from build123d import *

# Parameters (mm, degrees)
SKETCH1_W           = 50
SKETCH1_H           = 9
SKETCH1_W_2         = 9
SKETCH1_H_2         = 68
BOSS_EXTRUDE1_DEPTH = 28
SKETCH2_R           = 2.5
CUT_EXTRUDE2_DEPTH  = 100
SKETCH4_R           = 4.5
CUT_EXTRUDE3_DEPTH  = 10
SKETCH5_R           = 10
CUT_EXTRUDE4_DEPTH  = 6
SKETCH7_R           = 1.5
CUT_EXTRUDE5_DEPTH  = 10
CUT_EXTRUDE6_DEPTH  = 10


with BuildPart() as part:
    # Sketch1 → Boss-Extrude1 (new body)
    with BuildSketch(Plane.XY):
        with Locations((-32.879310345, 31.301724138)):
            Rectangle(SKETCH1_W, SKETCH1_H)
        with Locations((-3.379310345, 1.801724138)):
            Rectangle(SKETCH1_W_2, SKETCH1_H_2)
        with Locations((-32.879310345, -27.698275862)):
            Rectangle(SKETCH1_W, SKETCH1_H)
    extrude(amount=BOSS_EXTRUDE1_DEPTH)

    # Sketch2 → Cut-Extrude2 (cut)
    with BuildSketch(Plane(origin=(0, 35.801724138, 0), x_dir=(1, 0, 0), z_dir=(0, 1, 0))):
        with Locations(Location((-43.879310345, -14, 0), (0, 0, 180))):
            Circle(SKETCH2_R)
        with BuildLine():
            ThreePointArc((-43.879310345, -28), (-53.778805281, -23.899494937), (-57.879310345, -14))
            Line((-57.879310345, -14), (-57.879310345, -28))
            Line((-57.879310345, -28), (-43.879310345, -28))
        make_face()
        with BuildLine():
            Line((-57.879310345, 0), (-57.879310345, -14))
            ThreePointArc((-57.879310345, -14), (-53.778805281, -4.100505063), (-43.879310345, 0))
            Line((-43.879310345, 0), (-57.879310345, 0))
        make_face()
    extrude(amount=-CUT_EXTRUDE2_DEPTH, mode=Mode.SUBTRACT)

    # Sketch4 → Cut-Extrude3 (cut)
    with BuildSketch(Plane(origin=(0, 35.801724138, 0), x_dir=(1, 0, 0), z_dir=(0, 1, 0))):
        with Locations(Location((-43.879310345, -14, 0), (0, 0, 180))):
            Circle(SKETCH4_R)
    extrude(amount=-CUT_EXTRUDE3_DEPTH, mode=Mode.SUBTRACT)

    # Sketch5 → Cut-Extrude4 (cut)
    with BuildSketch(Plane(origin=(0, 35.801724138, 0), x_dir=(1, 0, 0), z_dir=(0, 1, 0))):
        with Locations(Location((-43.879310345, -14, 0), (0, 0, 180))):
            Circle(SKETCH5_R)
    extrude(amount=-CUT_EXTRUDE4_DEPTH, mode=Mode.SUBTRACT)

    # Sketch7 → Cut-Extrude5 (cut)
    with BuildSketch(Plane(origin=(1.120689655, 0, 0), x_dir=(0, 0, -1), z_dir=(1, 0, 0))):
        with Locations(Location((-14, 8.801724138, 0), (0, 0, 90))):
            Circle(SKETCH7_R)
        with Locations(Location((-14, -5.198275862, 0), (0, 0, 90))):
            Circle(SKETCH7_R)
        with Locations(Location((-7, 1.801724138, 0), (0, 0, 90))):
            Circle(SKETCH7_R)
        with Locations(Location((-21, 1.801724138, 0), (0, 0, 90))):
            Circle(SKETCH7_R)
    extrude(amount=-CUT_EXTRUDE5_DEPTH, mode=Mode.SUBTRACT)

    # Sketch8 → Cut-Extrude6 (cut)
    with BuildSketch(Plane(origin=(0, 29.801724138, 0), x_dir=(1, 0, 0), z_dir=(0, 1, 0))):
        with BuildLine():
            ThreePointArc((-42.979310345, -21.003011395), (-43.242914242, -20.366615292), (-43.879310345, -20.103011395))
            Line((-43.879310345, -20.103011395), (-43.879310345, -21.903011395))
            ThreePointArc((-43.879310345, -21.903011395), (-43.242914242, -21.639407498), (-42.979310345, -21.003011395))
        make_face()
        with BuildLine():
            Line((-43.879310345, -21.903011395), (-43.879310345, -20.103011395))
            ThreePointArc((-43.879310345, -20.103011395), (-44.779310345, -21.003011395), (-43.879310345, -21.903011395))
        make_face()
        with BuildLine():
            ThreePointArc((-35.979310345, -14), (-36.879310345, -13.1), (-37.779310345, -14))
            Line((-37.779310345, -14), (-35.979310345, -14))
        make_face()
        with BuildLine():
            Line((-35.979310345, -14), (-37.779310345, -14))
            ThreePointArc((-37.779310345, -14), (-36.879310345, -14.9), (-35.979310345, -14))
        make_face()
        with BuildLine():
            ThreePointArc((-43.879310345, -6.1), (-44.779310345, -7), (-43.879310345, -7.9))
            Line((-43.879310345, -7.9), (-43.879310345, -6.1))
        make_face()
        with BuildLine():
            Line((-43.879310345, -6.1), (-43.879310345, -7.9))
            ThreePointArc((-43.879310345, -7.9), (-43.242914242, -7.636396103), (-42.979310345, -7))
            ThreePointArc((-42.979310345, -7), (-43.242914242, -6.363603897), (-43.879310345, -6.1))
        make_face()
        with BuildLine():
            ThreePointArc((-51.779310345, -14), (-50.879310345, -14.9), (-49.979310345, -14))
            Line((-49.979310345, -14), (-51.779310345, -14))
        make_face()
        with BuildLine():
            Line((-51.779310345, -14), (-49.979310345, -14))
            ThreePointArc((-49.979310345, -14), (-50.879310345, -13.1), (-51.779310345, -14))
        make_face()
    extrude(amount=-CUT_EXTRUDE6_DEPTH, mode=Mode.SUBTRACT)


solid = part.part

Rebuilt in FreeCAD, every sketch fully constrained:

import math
import FreeCAD as App
import Part
import Sketcher

V = App.Vector

doc = App.newDocument("Part")
body = doc.addObject("PartDesign::Body", "Body")

sketch1 = doc.addObject("Sketcher::SketchObject", "Sketch")
body.addObject(sketch1)
sketch1.AttachmentSupport = (doc.XY_Plane, [""])
sketch1.MapMode = "FlatFace"
sketch1.addGeometry([
    Part.LineSegment(V(-58, 36, 0), V(-58, 27, 0)),
    Part.LineSegment(V(-58, 27, 0), V(-8, 27, 0)),
    Part.LineSegment(V(-8, 27, 0), V(-8, -23, 0)),
    Part.LineSegment(V(-8, -23, 0), V(-58, -23, 0)),
    Part.LineSegment(V(-58, -23, 0), V(-58, -32, 0)),
    Part.LineSegment(V(-58, -32, 0), V(1, -32, 0)),
    Part.LineSegment(V(1, -32, 0), V(1, 36, 0)),
    Part.LineSegment(V(1, 36, 0), V(-58, 36, 0)),
], False)
sketch1.addConstraint([
    Sketcher.Constraint("Coincident", 0, 2, 1, 1),
    Sketcher.Constraint("Coincident", 1, 2, 2, 1),
    Sketcher.Constraint("Coincident", 2, 2, 3, 1),
    Sketcher.Constraint("Coincident", 3, 2, 4, 1),
    Sketcher.Constraint("Coincident", 4, 2, 5, 1),
    Sketcher.Constraint("Coincident", 5, 2, 6, 1),
    Sketcher.Constraint("Coincident", 6, 2, 7, 1),
    Sketcher.Constraint("Coincident", 7, 2, 0, 1),
    Sketcher.Constraint("Vertical", 0),
    Sketcher.Constraint("Horizontal", 1),
    Sketcher.Constraint("Vertical", 2),
    Sketcher.Constraint("Horizontal", 3),
    Sketcher.Constraint("Vertical", 4),
    Sketcher.Constraint("Horizontal", 5),
    Sketcher.Constraint("Vertical", 6),
    Sketcher.Constraint("Horizontal", 7),
    Sketcher.Constraint("Vertical", 0, 2, 3, 2),
    Sketcher.Constraint("Equal", 3, 2),
    Sketcher.Constraint("Equal", 0, 4),
    Sketcher.Constraint("DistanceX", 1, 1, 1, 2, 50.0),
    Sketcher.Constraint("DistanceX", 5, 1, 5, 2, 59.0),
    Sketcher.Constraint("DistanceY", 0, 2, 0, 1, 9.0),
    Sketcher.Constraint("DistanceX", 0, 2, -1, 1, 57.87931),
    Sketcher.Constraint("DistanceY", -1, 1, 0, 2, 26.801724),
])
pad1 = doc.addObject("PartDesign::Pad", "Pad")
body.addObject(pad1)
pad1.Profile = sketch1
pad1.Length = 28

sketch2 = doc.addObject("Sketcher::SketchObject", "Sketch001")
body.addObject(sketch2)
sketch2.AttachmentSupport = (doc.XZ_Plane, [""])
sketch2.MapMode = "FlatFace"
sketch2.AttachmentOffset = App.Placement(V(0, 0, -35.801724), App.Rotation())
sketch2.addGeometry([
    Part.Circle(V(-43.9, 14, 0), V(0, 0, 1), 2.5),
    Part.ArcOfCircle(Part.Circle(V(-43.9, 14, 0), V(0, 0, 1), 14), math.radians(90), math.radians(180)),
    Part.LineSegment(V(-57.9, 14, 0), V(-57.9, 28, 0)),
    Part.LineSegment(V(-57.9, 28, 0), V(-43.9, 28, 0)),
    Part.LineSegment(V(-57.9, 0, 0), V(-57.9, 14, 0)),
    Part.ArcOfCircle(Part.Circle(V(-43.9, 14, 0), V(0, 0, 1), 14), math.radians(180), math.radians(270)),
    Part.LineSegment(V(-43.9, 0, 0), V(-57.9, 0, 0)),
], False)
sketch2.addConstraint([
    Sketcher.Constraint("Tangent", 1, 2, 2, 1),
    Sketcher.Constraint("Coincident", 2, 2, 3, 1),
    Sketcher.Constraint("Tangent", 3, 2, 1, 1),
    Sketcher.Constraint("Tangent", 4, 2, 5, 1),
    Sketcher.Constraint("Tangent", 5, 2, 6, 1),
    Sketcher.Constraint("Coincident", 6, 2, 4, 1),
    Sketcher.Constraint("Vertical", 2),
    Sketcher.Constraint("Horizontal", 3),
    Sketcher.Constraint("Vertical", 4),
    Sketcher.Constraint("Horizontal", 6),
    Sketcher.Constraint("Coincident", 1, 3, 0, 3),
    Sketcher.Constraint("Coincident", 5, 3, 0, 3),
    Sketcher.Constraint("Equal", 1, 5),
    Sketcher.Constraint("PointOnObject", 5, 2, -1),
    Sketcher.Constraint("Diameter", 0, 5.0),
    Sketcher.Constraint("Radius", 1, 14.0),
    Sketcher.Constraint("DistanceX", 0, 3, -1, 1, 43.87931),
])
pocket1 = doc.addObject("PartDesign::Pocket", "Pocket")
body.addObject(pocket1)
pocket1.Profile = sketch2
pocket1.Length = 100
pocket1.Reversed = True

sketch3 = doc.addObject("Sketcher::SketchObject", "Sketch002")
body.addObject(sketch3)
sketch3.AttachmentSupport = (doc.XZ_Plane, [""])
sketch3.MapMode = "FlatFace"
sketch3.AttachmentOffset = App.Placement(V(0, 0, -35.801724), App.Rotation())
sketch3.addGeometry(Part.Circle(V(-43.9, 14, 0), V(0, 0, 1), 4.5), False)
sketch3.addConstraint([
    Sketcher.Constraint("Diameter", 0, 9.0),
    Sketcher.Constraint("DistanceY", -1, 1, 0, 3, 14.0),
    Sketcher.Constraint("DistanceX", 0, 3, -1, 1, 43.87931),
])
pocket2 = doc.addObject("PartDesign::Pocket", "Pocket001")
body.addObject(pocket2)
pocket2.Profile = sketch3
pocket2.Length = 10
pocket2.Reversed = True

sketch4 = doc.addObject("Sketcher::SketchObject", "Sketch003")
body.addObject(sketch4)
sketch4.AttachmentSupport = (doc.XZ_Plane, [""])
sketch4.MapMode = "FlatFace"
sketch4.AttachmentOffset = App.Placement(V(0, 0, -35.801724), App.Rotation())
sketch4.addGeometry(Part.Circle(V(-44, 14, 0), V(0, 0, 1), 10), False)
sketch4.addConstraint([
    Sketcher.Constraint("Diameter", 0, 20.0),
    Sketcher.Constraint("DistanceY", -1, 1, 0, 3, 14.0),
    Sketcher.Constraint("DistanceX", 0, 3, -1, 1, 43.87931),
])
pocket3 = doc.addObject("PartDesign::Pocket", "Pocket002")
body.addObject(pocket3)
pocket3.Profile = sketch4
pocket3.Length = 6
pocket3.Reversed = True

sketch5 = doc.addObject("Sketcher::SketchObject", "Sketch004")
body.addObject(sketch5)
sketch5.AttachmentSupport = (doc.YZ_Plane, [""])
sketch5.MapMode = "FlatFace"
sketch5.AttachmentOffset = App.Placement(V(0, 0, 1.12069), App.Rotation())
sketch5.addGeometry([
    Part.Circle(V(8.8, 14, 0), V(0, 0, 1), 1.5),
    Part.Circle(V(-5.2, 14, 0), V(0, 0, 1), 1.5),
    Part.Circle(V(1.8, 7, 0), V(0, 0, 1), 1.5),
    Part.Circle(V(1.8, 21, 0), V(0, 0, 1), 1.5),
], False)
sketch5.addConstraint([
    Sketcher.Constraint("Equal", 0, 1),
    Sketcher.Constraint("Equal", 1, 2),
    Sketcher.Constraint("Equal", 2, 3),
    Sketcher.Constraint("Horizontal", 0, 3, 1, 3),
    Sketcher.Constraint("Vertical", 2, 3, 3, 3),
    Sketcher.Constraint("Diameter", 0, 3.0),
    Sketcher.Constraint("DistanceY", -1, 1, 0, 3, 14.0),
    Sketcher.Constraint("DistanceY", -1, 1, 2, 3, 7.0),
    Sketcher.Constraint("DistanceY", -1, 1, 3, 3, 21.0),
    Sketcher.Constraint("DistanceX", 1, 3, 0, 3, 14.0),
    Sketcher.Constraint("DistanceX", 2, 3, 0, 3, 7.0),
    Sketcher.Constraint("DistanceX", -1, 1, 0, 3, 8.801724),
])
pocket4 = doc.addObject("PartDesign::Pocket", "Pocket003")
body.addObject(pocket4)
pocket4.Profile = sketch5
pocket4.Length = 10

sketch6 = doc.addObject("Sketcher::SketchObject", "Sketch005")
body.addObject(sketch6)
sketch6.AttachmentSupport = (doc.XZ_Plane, [""])
sketch6.MapMode = "FlatFace"
sketch6.AttachmentOffset = App.Placement(V(0, 0, -29.801724), App.Rotation())
sketch6.addGeometry([
    Part.ArcOfCircle(Part.Circle(V(-43.9, 21, 0), V(0, 0, 1), 0.9), math.radians(-90), math.radians(0)),
    Part.ArcOfCircle(Part.Circle(V(-43.9, 21, 0), V(0, 0, 1), 0.9), math.radians(90), math.radians(270)),
    Part.ArcOfCircle(Part.Circle(V(-43.9, 21, 0), V(0, 0, 1), 0.9), math.radians(0), math.radians(90)),
    Part.Circle(V(-36.9, 14, 0), V(0, 0, 1), 0.9),
    Part.ArcOfCircle(Part.Circle(V(-43.9, 7, 0), V(0, 0, 1), 0.9), math.radians(90), math.radians(270)),
    Part.ArcOfCircle(Part.Circle(V(-43.9, 7, 0), V(0, 0, 1), 0.9), math.radians(0), math.radians(90)),
    Part.ArcOfCircle(Part.Circle(V(-43.9, 7, 0), V(0, 0, 1), 0.9), math.radians(-90), math.radians(0)),
    Part.Circle(V(-50.9, 14, 0), V(0, 0, 1), 0.9),
], False)
sketch6.addConstraint([
    Sketcher.Constraint("Tangent", 0, 1, 1, 2),
    Sketcher.Constraint("Tangent", 1, 1, 2, 2),
    Sketcher.Constraint("Tangent", 2, 1, 0, 2),
    Sketcher.Constraint("Tangent", 4, 1, 5, 2),
    Sketcher.Constraint("Tangent", 5, 1, 6, 2),
    Sketcher.Constraint("Tangent", 6, 1, 4, 2),
    Sketcher.Constraint("Equal", 2, 3),
    Sketcher.Constraint("Equal", 3, 4),
    Sketcher.Constraint("Equal", 6, 7),
    Sketcher.Constraint("Horizontal", 3, 3, 7, 3),
    Sketcher.Constraint("Horizontal", 1, 3, 2, 1),
    Sketcher.Constraint("Horizontal", 6, 3, 5, 1),
    Sketcher.Constraint("Vertical", 2, 3, 4, 3),
    Sketcher.Constraint("Vertical", 6, 3, 0, 1),
    Sketcher.Constraint("Vertical", 0, 1, 1, 1),
    Sketcher.Constraint("Vertical", 1, 1, 4, 1),
    Sketcher.Constraint("Vertical", 4, 1, 6, 1),
    Sketcher.Constraint("Diameter", 3, 1.8),
    Sketcher.Constraint("DistanceY", -1, 1, 3, 3, 14.0),
    Sketcher.Constraint("DistanceY", -1, 1, 4, 3, 7.0),
    Sketcher.Constraint("DistanceX", 0, 3, 3, 3, 7.0),
    Sketcher.Constraint("DistanceX", 7, 3, 4, 3, 7.0),
    Sketcher.Constraint("DistanceX", 0, 3, -1, 1, 43.87931),
    Sketcher.Constraint("DistanceY", -1, 1, 0, 3, 21.003011),
])
pocket5 = doc.addObject("PartDesign::Pocket", "Pocket004")
body.addObject(pocket5)
pocket5.Profile = sketch6
pocket5.Length = 10
pocket5.Reversed = True

doc.recompute()
